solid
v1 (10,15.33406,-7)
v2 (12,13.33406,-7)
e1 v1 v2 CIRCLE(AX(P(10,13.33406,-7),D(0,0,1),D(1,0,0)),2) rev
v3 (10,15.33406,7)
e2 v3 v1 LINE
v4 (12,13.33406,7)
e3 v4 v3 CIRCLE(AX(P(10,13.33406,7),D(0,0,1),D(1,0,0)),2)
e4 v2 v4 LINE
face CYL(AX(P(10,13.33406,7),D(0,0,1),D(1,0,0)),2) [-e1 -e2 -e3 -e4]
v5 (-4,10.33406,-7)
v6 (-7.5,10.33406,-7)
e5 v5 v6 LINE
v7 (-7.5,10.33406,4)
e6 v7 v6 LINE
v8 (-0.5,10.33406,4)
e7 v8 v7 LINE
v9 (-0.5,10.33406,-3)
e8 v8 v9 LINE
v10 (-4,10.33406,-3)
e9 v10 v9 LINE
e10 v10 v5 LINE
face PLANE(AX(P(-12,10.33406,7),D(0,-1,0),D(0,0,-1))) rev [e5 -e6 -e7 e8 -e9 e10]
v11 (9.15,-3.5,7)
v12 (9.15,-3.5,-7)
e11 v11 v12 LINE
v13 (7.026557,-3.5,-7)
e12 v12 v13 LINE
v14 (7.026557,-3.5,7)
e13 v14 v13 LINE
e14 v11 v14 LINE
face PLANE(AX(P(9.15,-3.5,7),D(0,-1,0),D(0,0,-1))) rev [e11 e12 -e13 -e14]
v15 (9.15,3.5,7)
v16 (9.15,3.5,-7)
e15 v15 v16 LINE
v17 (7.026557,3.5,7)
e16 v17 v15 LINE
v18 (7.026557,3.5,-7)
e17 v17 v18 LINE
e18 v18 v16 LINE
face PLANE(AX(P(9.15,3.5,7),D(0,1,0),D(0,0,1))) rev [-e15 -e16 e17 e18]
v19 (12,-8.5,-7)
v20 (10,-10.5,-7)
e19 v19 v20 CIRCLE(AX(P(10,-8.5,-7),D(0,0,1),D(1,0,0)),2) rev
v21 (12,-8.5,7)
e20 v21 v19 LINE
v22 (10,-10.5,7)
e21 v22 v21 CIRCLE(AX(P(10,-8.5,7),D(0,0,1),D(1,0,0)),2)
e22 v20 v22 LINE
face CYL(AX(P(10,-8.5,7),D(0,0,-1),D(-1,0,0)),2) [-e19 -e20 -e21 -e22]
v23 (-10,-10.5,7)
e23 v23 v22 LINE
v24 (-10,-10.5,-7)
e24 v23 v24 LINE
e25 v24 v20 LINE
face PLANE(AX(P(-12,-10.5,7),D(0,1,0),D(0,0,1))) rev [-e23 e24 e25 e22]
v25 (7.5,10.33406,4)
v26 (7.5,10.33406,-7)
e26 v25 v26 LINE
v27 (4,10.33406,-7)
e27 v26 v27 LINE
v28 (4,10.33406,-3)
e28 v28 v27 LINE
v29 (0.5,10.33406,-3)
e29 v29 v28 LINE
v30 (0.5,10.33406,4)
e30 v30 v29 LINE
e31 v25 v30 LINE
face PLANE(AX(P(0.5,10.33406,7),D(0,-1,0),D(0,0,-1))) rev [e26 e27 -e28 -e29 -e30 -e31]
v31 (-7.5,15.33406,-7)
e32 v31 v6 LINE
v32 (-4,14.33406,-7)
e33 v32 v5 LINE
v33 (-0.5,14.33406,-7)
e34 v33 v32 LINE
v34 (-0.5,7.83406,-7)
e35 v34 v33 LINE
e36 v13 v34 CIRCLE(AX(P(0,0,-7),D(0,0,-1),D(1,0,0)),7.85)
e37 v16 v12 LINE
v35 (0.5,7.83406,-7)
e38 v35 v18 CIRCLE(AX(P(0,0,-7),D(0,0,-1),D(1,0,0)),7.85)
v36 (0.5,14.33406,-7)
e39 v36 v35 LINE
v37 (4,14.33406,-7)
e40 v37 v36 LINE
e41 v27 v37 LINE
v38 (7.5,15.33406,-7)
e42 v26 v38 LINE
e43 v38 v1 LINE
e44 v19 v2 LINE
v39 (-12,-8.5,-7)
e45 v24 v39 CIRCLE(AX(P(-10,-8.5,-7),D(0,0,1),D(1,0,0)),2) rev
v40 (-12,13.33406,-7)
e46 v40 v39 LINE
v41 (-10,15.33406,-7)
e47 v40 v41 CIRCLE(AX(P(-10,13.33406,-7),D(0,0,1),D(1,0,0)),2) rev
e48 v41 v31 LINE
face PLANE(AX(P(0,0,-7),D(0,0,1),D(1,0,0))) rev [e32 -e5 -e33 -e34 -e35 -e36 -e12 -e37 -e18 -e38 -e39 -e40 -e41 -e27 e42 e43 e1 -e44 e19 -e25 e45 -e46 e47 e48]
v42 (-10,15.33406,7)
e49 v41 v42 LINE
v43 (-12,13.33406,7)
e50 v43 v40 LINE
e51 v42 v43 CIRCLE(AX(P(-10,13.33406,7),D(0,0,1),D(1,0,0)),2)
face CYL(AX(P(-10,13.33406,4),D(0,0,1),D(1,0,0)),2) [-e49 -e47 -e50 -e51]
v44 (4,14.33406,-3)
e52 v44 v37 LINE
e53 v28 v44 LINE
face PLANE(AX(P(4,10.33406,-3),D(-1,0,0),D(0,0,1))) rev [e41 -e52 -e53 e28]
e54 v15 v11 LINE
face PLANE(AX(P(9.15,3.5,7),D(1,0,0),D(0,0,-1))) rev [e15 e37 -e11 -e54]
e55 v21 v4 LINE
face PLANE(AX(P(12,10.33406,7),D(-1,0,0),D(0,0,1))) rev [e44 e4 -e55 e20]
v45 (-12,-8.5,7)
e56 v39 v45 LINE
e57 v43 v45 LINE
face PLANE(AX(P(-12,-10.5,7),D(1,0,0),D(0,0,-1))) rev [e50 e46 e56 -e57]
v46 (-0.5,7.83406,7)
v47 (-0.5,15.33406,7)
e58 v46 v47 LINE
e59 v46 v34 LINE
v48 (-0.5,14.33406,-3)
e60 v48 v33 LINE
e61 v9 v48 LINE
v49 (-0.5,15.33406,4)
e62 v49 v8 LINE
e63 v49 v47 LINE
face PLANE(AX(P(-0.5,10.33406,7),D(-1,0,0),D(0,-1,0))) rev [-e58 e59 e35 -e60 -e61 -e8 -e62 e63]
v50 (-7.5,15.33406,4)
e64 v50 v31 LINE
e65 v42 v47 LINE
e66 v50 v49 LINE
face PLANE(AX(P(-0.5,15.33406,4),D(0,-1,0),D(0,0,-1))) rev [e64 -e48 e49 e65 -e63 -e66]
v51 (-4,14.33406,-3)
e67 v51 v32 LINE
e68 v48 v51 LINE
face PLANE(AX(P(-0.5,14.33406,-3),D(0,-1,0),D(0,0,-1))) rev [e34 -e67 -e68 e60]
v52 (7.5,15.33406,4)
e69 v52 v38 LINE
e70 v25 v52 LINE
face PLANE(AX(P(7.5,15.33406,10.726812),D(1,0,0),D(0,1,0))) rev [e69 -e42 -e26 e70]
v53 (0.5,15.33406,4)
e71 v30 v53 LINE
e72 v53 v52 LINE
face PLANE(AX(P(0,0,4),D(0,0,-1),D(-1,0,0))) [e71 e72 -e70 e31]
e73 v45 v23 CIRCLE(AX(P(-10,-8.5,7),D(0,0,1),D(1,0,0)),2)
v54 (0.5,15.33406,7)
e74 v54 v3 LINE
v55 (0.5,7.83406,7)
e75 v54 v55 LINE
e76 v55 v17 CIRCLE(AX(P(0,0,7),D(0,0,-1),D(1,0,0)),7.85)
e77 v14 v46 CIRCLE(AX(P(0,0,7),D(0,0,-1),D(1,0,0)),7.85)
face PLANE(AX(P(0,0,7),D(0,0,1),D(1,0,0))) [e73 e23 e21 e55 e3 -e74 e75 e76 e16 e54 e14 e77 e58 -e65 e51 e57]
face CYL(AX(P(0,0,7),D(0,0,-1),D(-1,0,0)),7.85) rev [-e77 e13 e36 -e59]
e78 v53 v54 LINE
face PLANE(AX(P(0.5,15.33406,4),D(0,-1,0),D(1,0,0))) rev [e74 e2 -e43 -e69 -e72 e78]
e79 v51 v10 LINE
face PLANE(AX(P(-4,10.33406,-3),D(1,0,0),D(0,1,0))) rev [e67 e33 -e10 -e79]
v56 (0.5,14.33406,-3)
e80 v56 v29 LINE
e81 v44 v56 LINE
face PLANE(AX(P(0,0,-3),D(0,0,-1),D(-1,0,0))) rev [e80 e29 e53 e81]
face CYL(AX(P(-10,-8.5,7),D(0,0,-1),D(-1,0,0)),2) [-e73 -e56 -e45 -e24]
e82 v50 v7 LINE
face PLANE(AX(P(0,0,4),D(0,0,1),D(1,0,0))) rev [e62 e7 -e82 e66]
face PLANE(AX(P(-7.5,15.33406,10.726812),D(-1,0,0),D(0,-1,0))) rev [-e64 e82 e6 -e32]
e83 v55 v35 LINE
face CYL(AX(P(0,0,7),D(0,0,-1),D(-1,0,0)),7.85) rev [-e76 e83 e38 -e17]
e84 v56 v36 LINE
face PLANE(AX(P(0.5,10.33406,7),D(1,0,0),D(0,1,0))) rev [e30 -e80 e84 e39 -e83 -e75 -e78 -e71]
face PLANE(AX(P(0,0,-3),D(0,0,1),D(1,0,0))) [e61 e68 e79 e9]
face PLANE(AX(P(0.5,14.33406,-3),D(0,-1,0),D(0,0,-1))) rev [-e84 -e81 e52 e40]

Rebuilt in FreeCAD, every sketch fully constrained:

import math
import FreeCAD as App
import Part
import Sketcher
Q = App.Units.Quantity


def edges_at(feature, points):
    """Names of the edges that pass closest to the given points."""
    edges = feature.Shape.Edges
    near = lambda p: min(range(len(edges)), key=lambda i: edges[i].distToShape(Part.Vertex(*p))[0])
    return sorted({f"Edge{near(p) + 1}" for p in points})


def add_polygon(sketch, points):
    """Adds a closed chain of lines whose ends are joined by coincident constraints."""
    first, n = sketch.GeometryCount, len(points)
    for a, b in zip(points, points[1:] + points[:1]):
        sketch.addGeometry(Part.LineSegment(App.Vector(*a, 0), App.Vector(*b, 0)), False)
    for i in range(n):
        sketch.addConstraint(Sketcher.Constraint("Coincident", first + i, 2, first + (i + 1) % n, 1))

doc = App.newDocument("Part")
body = doc.addObject("PartDesign::Body", "Body")

# Sketch on XY plane
sketch1 = body.newObject("Sketcher::SketchObject", "Sketch")
sketch1.AttachmentSupport = (doc.getObject("XY_Plane"), [""])
sketch1.MapMode = "FlatFace"
sketch1.addGeometry(Part.LineSegment(App.Vector(-12, -10.5, 0), App.Vector(12, -10.5, 0)), False)
sketch1.addGeometry(Part.LineSegment(App.Vector(12, -10.5, 0), App.Vector(12, 10.3, 0)), False)
sketch1.addGeometry(Part.LineSegment(App.Vector(12, 10.3, 0), App.Vector(0.5, 10.3, 0)), False)
sketch1.addGeometry(Part.LineSegment(App.Vector(0.5, 10.3, 0), App.Vector(0.5, 7.8, 0)), False)
sketch1.addGeometry(Part.ArcOfCircle(Part.Circle(App.Vector(0, 0, 0), App.Vector(0, 0, 1), 7.9), math.radians(26), math.radians(86)), False)
sketch1.addGeometry(Part.LineSegment(App.Vector(7, 3.5, 0), App.Vector(9.2, 3.5, 0)), False)
sketch1.addGeometry(Part.LineSegment(App.Vector(9.2, 3.5, 0), App.Vector(9.2, -3.5, 0)), False)
sketch1.addGeometry(Part.LineSegment(App.Vector(9.2, -3.5, 0), App.Vector(7, -3.5, 0)), False)
sketch1.addGeometry(Part.ArcOfCircle(Part.Circle(App.Vector(0, 0, 0), App.Vector(0, 0, 1), 7.8), math.radians(94), math.radians(334)), False)
sketch1.addGeometry(Part.LineSegment(App.Vector(-0.5, 7.8, 0), App.Vector(-0.5, 10.3, 0)), False)
sketch1.addGeometry(Part.LineSegment(App.Vector(-0.5, 10.3, 0), App.Vector(-12, 10.3, 0)), False)
sketch1.addGeometry(Part.LineSegment(App.Vector(-12, 10.3, 0), App.Vector(-12, -10.5, 0)), False)
sketch1.addConstraint(Sketcher.Constraint("Coincident", 0, 2, 1, 1))
sketch1.addConstraint(Sketcher.Constraint("Coincident", 1, 2, 2, 1))
sketch1.addConstraint(Sketcher.Constraint("Coincident", 2, 2, 3, 1))
sketch1.addConstraint(Sketcher.Constraint("Coincident", 3, 2, 4, 2))
sketch1.addConstraint(Sketcher.Constraint("Coincident", 4, 1, 5, 1))
sketch1.addConstraint(Sketcher.Constraint("Coincident", 5, 2, 6, 1))
sketch1.addConstraint(Sketcher.Constraint("Coincident", 6, 2, 7, 1))
sketch1.addConstraint(Sketcher.Constraint("Coincident", 7, 2, 8, 2))
sketch1.addConstraint(Sketcher.Constraint("Coincident", 8, 1, 9, 1))
sketch1.addConstraint(Sketcher.Constraint("Coincident", 9, 2, 10, 1))
sketch1.addConstraint(Sketcher.Constraint("Coincident", 10, 2, 11, 1))
sketch1.addConstraint(Sketcher.Constraint("Coincident", 11, 2, 0, 1))
sketch1.addConstraint(Sketcher.Constraint("Horizontal", 0))
sketch1.addConstraint(Sketcher.Constraint("Vertical", 1))
sketch1.addConstraint(Sketcher.Constraint("Horizontal", 2))
sketch1.addConstraint(Sketcher.Constraint("Vertical", 3))
sketch1.addConstraint(Sketcher.Constraint("Horizontal", 5))
sketch1.addConstraint(Sketcher.Constraint("Vertical", 6))
sketch1.addConstraint(Sketcher.Constraint("Horizontal", 7))
sketch1.addConstraint(Sketcher.Constraint("Vertical", 9))
sketch1.addConstraint(Sketcher.Constraint("Horizontal", 10))
sketch1.addConstraint(Sketcher.Constraint("Vertical", 11))
sketch1.addConstraint(Sketcher.Constraint("Coincident", 4, 3, -1, 1))
sketch1.addConstraint(Sketcher.Constraint("Coincident", 8, 3, -1, 1))
sketch1.addConstraint(Sketcher.Constraint("Equal", 4, 8))
sketch1.addConstraint(Sketcher.Constraint("Symmetric", 2, 2, 9, 2, -2))
sketch1.addConstraint(Sketcher.Constraint("Vertical", 4, 1, 7, 2))
sketch1.addConstraint(Sketcher.Constraint("Equal", 2, 10))
sketch1.addConstraint(Sketcher.Constraint("DistanceX", 0, 1, 0, 2, Q("24 mm")))
sketch1.addConstraint(Sketcher.Constraint("DistanceY", 6, 2, 6, 1, Q("7 mm")))
sketch1.addConstraint(Sketcher.Constraint("Radius", 4, Q("7.85 mm")))
sketch1.addConstraint(Sketcher.Constraint("DistanceX", 2, 2, 2, 1, Q("11.5 mm")))
sketch1.addConstraint(Sketcher.Constraint("DistanceY", 3, 2, 3, 1, Q("2.5 mm")))
sketch1.addConstraint(Sketcher.Constraint("DistanceY", 0, 2, 6, 2, Q("7 mm")))
sketch1.addConstraint(Sketcher.Constraint("DistanceX", -1, 1, 5, 2, Q("9.15 mm")))
pad1 = body.newObject("PartDesign::Pad", "Pad")
pad1.Profile = sketch1
pad1.Length = 14
pad1.Midplane = True

# Sketch on XY plane
sketch2 = body.newObject("Sketcher::SketchObject", "Sketch001")
sketch2.AttachmentSupport = (doc.getObject("XY_Plane"), [""])
sketch2.MapMode = "FlatFace"
sketch2.AttachmentOffset = App.Placement(App.Vector(0, 0, -7), App.Rotation())
add_polygon(sketch2, [(0.5, 14.3), (0.5, 10.3), (4, 10.3), (4, 14.3)])  # lines 0-3
add_polygon(sketch2, [(-4, 14.3), (-4, 10.3), (-0.5, 10.3), (-0.5, 14.3)])  # lines 4-7
sketch2.addConstraint(Sketcher.Constraint("Vertical", 0))
sketch2.addConstraint(Sketcher.Constraint("Horizontal", 1))
sketch2.addConstraint(Sketcher.Constraint("Vertical", 2))
sketch2.addConstraint(Sketcher.Constraint("Horizontal", 3))
sketch2.addConstraint(Sketcher.Constraint("Vertical", 4))
sketch2.addConstraint(Sketcher.Constraint("Horizontal", 5))
sketch2.addConstraint(Sketcher.Constraint("Vertical", 6))
sketch2.addConstraint(Sketcher.Constraint("Horizontal", 7))
sketch2.addConstraint(Sketcher.Constraint("Symmetric", 1, 2, 4, 2, -2))
sketch2.addConstraint(Sketcher.Constraint("Symmetric", 3, 2, 6, 2, -2))
sketch2.addConstraint(Sketcher.Constraint("DistanceY", 0, 2, 0, 1, Q("4 mm")))
sketch2.addConstraint(Sketcher.Constraint("DistanceX", 1, 1, 1, 2, Q("3.5 mm")))
sketch2.addConstraint(Sketcher.Constraint("DistanceX", -1, 1, 1, 2, Q("4 mm")))
sketch2.addConstraint(Sketcher.Constraint("DistanceY", -1, 1, 0, 2, Q("10.33406 mm")))
pad2 = body.newObject("PartDesign::Pad", "Pad001")
pad2.Profile = sketch2
pad2.Length = 4

# Sketch on XY plane
sketch3 = body.newObject("Sketcher::SketchObject", "Sketch002")
sketch3.AttachmentSupport = (doc.getObject("XY_Plane"), [""])
sketch3.MapMode = "FlatFace"
sketch3.AttachmentOffset = App.Placement(App.Vector(0, 0, 7), App.Rotation())
add_polygon(sketch3, [(12, 15.33406), (12, 10.33406), (0.5, 10.33406), (0.5, 15.33406)])  # lines 0-3
add_polygon(sketch3, [(-0.5, 15.33406), (-0.5, 10.33406), (-12, 10.33406), (-12, 15.33406)])  # lines 4-7
sketch3.addConstraint(Sketcher.Constraint("Vertical", 0))
sketch3.addConstraint(Sketcher.Constraint("Horizontal", 1))
sketch3.addConstraint(Sketcher.Constraint("Vertical", 2))
sketch3.addConstraint(Sketcher.Constraint("Horizontal", 3))
sketch3.addConstraint(Sketcher.Constraint("Vertical", 4))
sketch3.addConstraint(Sketcher.Constraint("Horizontal", 5))
sketch3.addConstraint(Sketcher.Constraint("Vertical", 6))
sketch3.addConstraint(Sketcher.Constraint("Horizontal", 7))
sketch3.addConstraint(Sketcher.Constraint("Symmetric", 1, 2, 4, 2, -2))
sketch3.addConstraint(Sketcher.Constraint("Symmetric", 3, 2, 6, 2, -2))
sketch3.addConstraint(Sketcher.Constraint("DistanceY", 0, 2, 0, 1, Q("5 mm")))
sketch3.addConstraint(Sketcher.Constraint("DistanceX", 1, 2, 1, 1, Q("11.5 mm")))
sketch3.addConstraint(Sketcher.Constraint("DistanceX", -1, 1, 0, 2, Q("12 mm")))
sketch3.addConstraint(Sketcher.Constraint("DistanceY", -1, 1, 0, 2, Q("10.33406 mm")))
pad3 = body.newObject("PartDesign::Pad", "Pad002")
pad3.Profile = sketch3
pad3.Length = 3
pad3.Reversed = True

# Sketch on XY plane
sketch4 = body.newObject("Sketcher::SketchObject", "Sketch003")
sketch4.AttachmentSupport = (doc.getObject("XY_Plane"), [""])
sketch4.MapMode = "FlatFace"
sketch4.AttachmentOffset = App.Placement(App.Vector(0, 0, -7), App.Rotation())
add_polygon(sketch4, [(-12, 15.3), (-12, 10.3), (-7.5, 10.3), (-7.5, 15.3)])  # lines 0-3
add_polygon(sketch4, [(7.5, 15.3), (7.5, 10.3), (12, 10.3), (12, 15.3)])  # lines 4-7
sketch4.addConstraint(Sketcher.Constraint("Vertical", 0))
sketch4.addConstraint(Sketcher.Constraint("Horizontal", 1))
sketch4.addConstraint(Sketcher.Constraint("Vertical", 2))
sketch4.addConstraint(Sketcher.Constraint("Horizontal", 3))
sketch4.addConstraint(Sketcher.Constraint("Vertical", 4))
sketch4.addConstraint(Sketcher.Constraint("Horizontal", 5))
sketch4.addConstraint(Sketcher.Constraint("Vertical", 6))
sketch4.addConstraint(Sketcher.Constraint("Horizontal", 7))
sketch4.addConstraint(Sketcher.Constraint("Symmetric", 1, 2, 4, 2, -2))
sketch4.addConstraint(Sketcher.Constraint("Symmetric", 3, 2, 6, 2, -2))
sketch4.addConstraint(Sketcher.Constraint("DistanceY", 0, 2, 0, 1, Q("5 mm")))
sketch4.addConstraint(Sketcher.Constraint("DistanceX", 1, 1, 1, 2, Q("4.5 mm")))
sketch4.addConstraint(Sketcher.Constraint("DistanceX", 0, 2, -1, 1, Q("12 mm")))
sketch4.addConstraint(Sketcher.Constraint("DistanceY", -1, 1, 0, 2, Q("10.33406 mm")))
pad4 = body.newObject("PartDesign::Pad", "Pad003")
pad4.Profile = sketch4
pad4.Length = 11
doc.recompute()

fillet = body.newObject("PartDesign::Fillet", "Fillet")
fillet.Base = (pad4, edges_at(pad4, [
    (12, -10.5, 0),
    (-12, -10.5, 0),
    (12, 15.334, 0),
    (-12, 15.334, 0),
]))
fillet.Radius = 2

doc.recompute()
